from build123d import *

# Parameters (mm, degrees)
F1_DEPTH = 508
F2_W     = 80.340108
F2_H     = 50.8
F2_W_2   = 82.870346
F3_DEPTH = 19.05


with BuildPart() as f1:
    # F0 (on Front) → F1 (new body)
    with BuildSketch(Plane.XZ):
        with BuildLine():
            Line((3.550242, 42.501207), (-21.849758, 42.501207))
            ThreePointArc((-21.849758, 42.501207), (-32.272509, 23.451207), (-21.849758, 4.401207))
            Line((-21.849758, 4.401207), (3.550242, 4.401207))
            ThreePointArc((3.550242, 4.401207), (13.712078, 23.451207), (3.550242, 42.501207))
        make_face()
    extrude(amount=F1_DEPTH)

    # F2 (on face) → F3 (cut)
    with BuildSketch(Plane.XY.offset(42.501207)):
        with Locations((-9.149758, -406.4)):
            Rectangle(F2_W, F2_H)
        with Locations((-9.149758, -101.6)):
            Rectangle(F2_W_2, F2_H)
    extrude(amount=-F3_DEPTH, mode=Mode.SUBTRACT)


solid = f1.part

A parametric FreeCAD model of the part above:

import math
import FreeCAD as App
import Part
import Sketcher
Q = App.Units.Quantity

doc = App.newDocument("Part")
body = doc.addObject("PartDesign::Body", "Body")

sketch1 = body.newObject("Sketcher::SketchObject", "Sketch")
sketch1.AttachmentSupport = (doc.getObject("XZ_Plane"), [""])
sketch1.MapMode = "FlatFace"
sketch1.addGeometry(Part.LineSegment(App.Vector(4, 43, 0), App.Vector(-22, 43, 0)), False)
sketch1.addGeometry(Part.ArcOfCircle(Part.Circle(App.Vector(-10, 23, 0), App.Vector(0, 0, 1), 23), math.radians(123), math.radians(237)), False)
sketch1.addGeometry(Part.LineSegment(App.Vector(-22, 4, 0), App.Vector(4, 4, 0)), False)
sketch1.addGeometry(Part.ArcOfCircle(Part.Circle(App.Vector(-9, 23, 0), App.Vector(0, 0, 1), 23), math.radians(-56), math.radians(56)), False)
sketch1.addConstraint(Sketcher.Constraint("Coincident", 0, 2, 1, 1))
sketch1.addConstraint(Sketcher.Constraint("Coincident", 1, 2, 2, 1))
sketch1.addConstraint(Sketcher.Constraint("Coincident", 2, 2, 3, 1))
sketch1.addConstraint(Sketcher.Constraint("Coincident", 3, 2, 0, 1))
sketch1.addConstraint(Sketcher.Constraint("Horizontal", 0))
sketch1.addConstraint(Sketcher.Constraint("Horizontal", 2))
sketch1.addConstraint(Sketcher.Constraint("Horizontal", 1, 3, 3, 3))
sketch1.addConstraint(Sketcher.Constraint("Vertical", 0, 2, 1, 2))
sketch1.addConstraint(Sketcher.Constraint("DistanceX", 0, 2, 0, 1, Q("1 in")))
sketch1.addConstraint(Sketcher.Constraint("DistanceY", 1, 2, 0, 2, Q("1.5 in")))
sketch1.addConstraint(Sketcher.Constraint("Radius", 1, Q("22.620527 mm")))
sketch1.addConstraint(Sketcher.Constraint("Radius", 3, Q("22.937066 mm")))
sketch1.addConstraint(Sketcher.Constraint("DistanceX", 3, 3, -1, 1, Q("9.224988 mm")))
sketch1.addConstraint(Sketcher.Constraint("DistanceY", -1, 1, 1, 3, Q("23.451207 mm")))
pad1 = body.newObject("PartDesign::Pad", "Pad")
pad1.Profile = sketch1
pad1.Length = Q("20 in")

sketch2 = body.newObject("Sketcher::SketchObject", "Sketch001")
sketch2.AttachmentSupport = (doc.getObject("XY_Plane"), [""])
sketch2.MapMode = "FlatFace"
sketch2.AttachmentOffset = App.Placement(App.Vector(0, 0, 42.501207), App.Rotation())
sketch2.addGeometry(Part.LineSegment(App.Vector(-49, -381, 0), App.Vector(-49, -432, 0)), False)
sketch2.addGeometry(Part.LineSegment(App.Vector(-49, -432, 0), App.Vector(31, -432, 0)), False)
sketch2.addGeometry(Part.LineSegment(App.Vector(31, -432, 0), App.Vector(31, -381, 0)), False)
sketch2.addGeometry(Part.LineSegment(App.Vector(31, -381, 0), App.Vector(-49, -381, 0)), False)
sketch2.addGeometry(Part.LineSegment(App.Vector(-51, -76, 0), App.Vector(-51, -127, 0)), False)
sketch2.addGeometry(Part.LineSegment(App.Vector(-51, -127, 0), App.Vector(32, -127, 0)), False)
sketch2.addGeometry(Part.LineSegment(App.Vector(32, -127, 0), App.Vector(32, -76, 0)), False)
sketch2.addGeometry(Part.LineSegment(App.Vector(32, -76, 0), App.Vector(-51, -76, 0)), False)
sketch2.addConstraint(Sketcher.Constraint("Coincident", 0, 2, 1, 1))
sketch2.addConstraint(Sketcher.Constraint("Coincident", 1, 2, 2, 1))
sketch2.addConstraint(Sketcher.Constraint("Coincident", 2, 2, 3, 1))
sketch2.addConstraint(Sketcher.Constraint("Coincident", 3, 2, 0, 1))
sketch2.addConstraint(Sketcher.Constraint("Coincident", 4, 2, 5, 1))
sketch2.addConstraint(Sketcher.Constraint("Coincident", 5, 2, 6, 1))
sketch2.addConstraint(Sketcher.Constraint("Coincident", 6, 2, 7, 1))
sketch2.addConstraint(Sketcher.Constraint("Coincident", 7, 2, 4, 1))
sketch2.addConstraint(Sketcher.Constraint("Vertical", 0))
sketch2.addConstraint(Sketcher.Constraint("Horizontal", 1))
sketch2.addConstraint(Sketcher.Constraint("Vertical", 2))
sketch2.addConstraint(Sketcher.Constraint("Horizontal", 3))
sketch2.addConstraint(Sketcher.Constraint("Vertical", 4))
sketch2.addConstraint(Sketcher.Constraint("Horizontal", 5))
sketch2.addConstraint(Sketcher.Constraint("Vertical", 6))
sketch2.addConstraint(Sketcher.Constraint("Horizontal", 7))
sketch2.addConstraint(Sketcher.Constraint("Equal", 2, 4))
sketch2.addConstraint(Sketcher.Constraint("DistanceY", 0, 2, 0, 1, Q("2 in")))
sketch2.addConstraint(Sketcher.Constraint("DistanceY", 0, 2, -1, 1, Q("17 in")))
sketch2.addConstraint(Sketcher.Constraint("DistanceY", 4, 2, -1, 1, Q("5 in")))
sketch2.addConstraint(Sketcher.Constraint("DistanceX", 1, 1, 1, 2, Q("80.340108 mm")))
sketch2.addConstraint(Sketcher.Constraint("DistanceX", 5, 1, 5, 2, Q("82.870346 mm")))
sketch2.addConstraint(Sketcher.Constraint("DistanceX", 4, 2, -1, 1, Q("50.584931 mm")))
sketch2.addConstraint(Sketcher.Constraint("DistanceX", 4, 2, 3, 2, Q("1.265119 mm")))
pocket1 = body.newObject("PartDesign::Pocket", "Pocket")
pocket1.Profile = sketch2
pocket1.Length = Q("0.75 in")

doc.recompute()
